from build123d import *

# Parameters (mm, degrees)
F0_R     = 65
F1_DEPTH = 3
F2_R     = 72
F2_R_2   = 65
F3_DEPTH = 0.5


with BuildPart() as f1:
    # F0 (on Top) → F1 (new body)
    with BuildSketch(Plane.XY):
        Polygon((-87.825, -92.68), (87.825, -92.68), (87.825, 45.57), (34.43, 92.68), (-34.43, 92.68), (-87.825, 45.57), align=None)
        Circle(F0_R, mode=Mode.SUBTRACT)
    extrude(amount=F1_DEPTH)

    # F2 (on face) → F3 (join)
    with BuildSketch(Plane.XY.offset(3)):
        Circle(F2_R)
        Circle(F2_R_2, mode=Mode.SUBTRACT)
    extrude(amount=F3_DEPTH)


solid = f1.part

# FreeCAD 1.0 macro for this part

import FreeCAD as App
import Part
import Sketcher

V = App.Vector

doc = App.newDocument("Part")
params = doc.addObject("Spreadsheet::Sheet", "Params")
for row, (alias, value) in enumerate([
    ("sketch1_diameter", "130 mm"),
    ("sketch1_width", "175.65 mm"),
    ("sketch1_width2", "68.86 mm"),
    ("sketch1_height", "138.25 mm"),
    ("pad1_length", "3 mm"),
    ("sketch2_diameter", "144 mm"),
    ("sketch2_diameter2", "130 mm"),
    ("pad2_length", "0.5 mm"),
], start=1):
    params.set(f"A{row}", alias)
    params.set(f"B{row}", "=" + value)
    params.setAlias(f"B{row}", alias)

body = doc.addObject("PartDesign::Body", "Body")

sketch1 = body.newObject("Sketcher::SketchObject", "Sketch")
sketch1.AttachmentSupport = (doc.getObject("XY_Plane"), [""])
sketch1.MapMode = "FlatFace"
sketch1.addGeometry([
    Part.LineSegment(V(-88, -93, 0), V(88, -93, 0)),
    Part.LineSegment(V(88, -93, 0), V(88, 46, 0)),
    Part.LineSegment(V(88, 46, 0), V(34, 93, 0)),
    Part.LineSegment(V(34, 93, 0), V(-34, 93, 0)),
    Part.LineSegment(V(-34, 93, 0), V(-88, 46, 0)),
    Part.LineSegment(V(-88, 46, 0), V(-88, -93, 0)),
    Part.Circle(V(0, 0, 0), V(0, 0, 1), 65),
], False)
sketch1.addConstraint([
    Sketcher.Constraint("Coincident", 0, 2, 1, 1),
    Sketcher.Constraint("Coincident", 1, 2, 2, 1),
    Sketcher.Constraint("Coincident", 2, 2, 3, 1),
    Sketcher.Constraint("Coincident", 3, 2, 4, 1),
    Sketcher.Constraint("Coincident", 4, 2, 5, 1),
    Sketcher.Constraint("Coincident", 5, 2, 0, 1),
    Sketcher.Constraint("Horizontal", 0),
    Sketcher.Constraint("Vertical", 1),
    Sketcher.Constraint("Horizontal", 3),
    Sketcher.Constraint("Vertical", 5),
    Sketcher.Constraint("Coincident", 6, 3, -1, 1),
    Sketcher.Constraint("Symmetric", 1, 2, 4, 2, -2),
    Sketcher.Constraint("Equal", 2, 4),
    Sketcher.Constraint("Diameter", 6, 130.0),
    Sketcher.Constraint("DistanceX", 0, 1, 0, 2, 175.65),
    Sketcher.Constraint("DistanceX", 3, 2, 3, 1, 68.86),
    Sketcher.Constraint("DistanceY", 1, 1, 1, 2, 138.25),
    Sketcher.Constraint("DistanceY", 0, 2, -1, 1, 92.68),
    Sketcher.Constraint("DistanceY", -1, 1, 2, 2, 92.68),
])
sketch1.setExpression("Constraints[13]", "Params.sketch1_diameter")
sketch1.setExpression("Constraints[14]", "Params.sketch1_width")
sketch1.setExpression("Constraints[15]", "Params.sketch1_width2")
sketch1.setExpression("Constraints[16]", "Params.sketch1_height")
pad1 = body.newObject("PartDesign::Pad", "Pad")
pad1.Profile = sketch1
pad1.setExpression("Length", "Params.pad1_length")

sketch2 = body.newObject("Sketcher::SketchObject", "Sketch001")
sketch2.AttachmentSupport = (doc.getObject("XY_Plane"), [""])
sketch2.MapMode = "FlatFace"
sketch2.AttachmentOffset = App.Placement(V(0, 0, 3), App.Rotation())
sketch2.addGeometry([
    Part.Circle(V(0, 0, 0), V(0, 0, 1), 72),
    Part.Circle(V(0, 0, 0), V(0, 0, 1), 65),
], False)
sketch2.addConstraint([
    Sketcher.Constraint("Coincident", 0, 3, -1, 1),
    Sketcher.Constraint("Coincident", 1, 3, -1, 1),
    Sketcher.Constraint("Diameter", 0, 144.0),
    Sketcher.Constraint("Diameter", 1, 130.0),
])
sketch2.setExpression("Constraints[2]", "Params.sketch2_diameter")
sketch2.setExpression("Constraints[3]", "Params.sketch2_diameter2")
pad2 = body.newObject("PartDesign::Pad", "Pad001")
pad2.Profile = sketch2
pad2.setExpression("Length", "Params.pad2_length")

doc.recompute()
